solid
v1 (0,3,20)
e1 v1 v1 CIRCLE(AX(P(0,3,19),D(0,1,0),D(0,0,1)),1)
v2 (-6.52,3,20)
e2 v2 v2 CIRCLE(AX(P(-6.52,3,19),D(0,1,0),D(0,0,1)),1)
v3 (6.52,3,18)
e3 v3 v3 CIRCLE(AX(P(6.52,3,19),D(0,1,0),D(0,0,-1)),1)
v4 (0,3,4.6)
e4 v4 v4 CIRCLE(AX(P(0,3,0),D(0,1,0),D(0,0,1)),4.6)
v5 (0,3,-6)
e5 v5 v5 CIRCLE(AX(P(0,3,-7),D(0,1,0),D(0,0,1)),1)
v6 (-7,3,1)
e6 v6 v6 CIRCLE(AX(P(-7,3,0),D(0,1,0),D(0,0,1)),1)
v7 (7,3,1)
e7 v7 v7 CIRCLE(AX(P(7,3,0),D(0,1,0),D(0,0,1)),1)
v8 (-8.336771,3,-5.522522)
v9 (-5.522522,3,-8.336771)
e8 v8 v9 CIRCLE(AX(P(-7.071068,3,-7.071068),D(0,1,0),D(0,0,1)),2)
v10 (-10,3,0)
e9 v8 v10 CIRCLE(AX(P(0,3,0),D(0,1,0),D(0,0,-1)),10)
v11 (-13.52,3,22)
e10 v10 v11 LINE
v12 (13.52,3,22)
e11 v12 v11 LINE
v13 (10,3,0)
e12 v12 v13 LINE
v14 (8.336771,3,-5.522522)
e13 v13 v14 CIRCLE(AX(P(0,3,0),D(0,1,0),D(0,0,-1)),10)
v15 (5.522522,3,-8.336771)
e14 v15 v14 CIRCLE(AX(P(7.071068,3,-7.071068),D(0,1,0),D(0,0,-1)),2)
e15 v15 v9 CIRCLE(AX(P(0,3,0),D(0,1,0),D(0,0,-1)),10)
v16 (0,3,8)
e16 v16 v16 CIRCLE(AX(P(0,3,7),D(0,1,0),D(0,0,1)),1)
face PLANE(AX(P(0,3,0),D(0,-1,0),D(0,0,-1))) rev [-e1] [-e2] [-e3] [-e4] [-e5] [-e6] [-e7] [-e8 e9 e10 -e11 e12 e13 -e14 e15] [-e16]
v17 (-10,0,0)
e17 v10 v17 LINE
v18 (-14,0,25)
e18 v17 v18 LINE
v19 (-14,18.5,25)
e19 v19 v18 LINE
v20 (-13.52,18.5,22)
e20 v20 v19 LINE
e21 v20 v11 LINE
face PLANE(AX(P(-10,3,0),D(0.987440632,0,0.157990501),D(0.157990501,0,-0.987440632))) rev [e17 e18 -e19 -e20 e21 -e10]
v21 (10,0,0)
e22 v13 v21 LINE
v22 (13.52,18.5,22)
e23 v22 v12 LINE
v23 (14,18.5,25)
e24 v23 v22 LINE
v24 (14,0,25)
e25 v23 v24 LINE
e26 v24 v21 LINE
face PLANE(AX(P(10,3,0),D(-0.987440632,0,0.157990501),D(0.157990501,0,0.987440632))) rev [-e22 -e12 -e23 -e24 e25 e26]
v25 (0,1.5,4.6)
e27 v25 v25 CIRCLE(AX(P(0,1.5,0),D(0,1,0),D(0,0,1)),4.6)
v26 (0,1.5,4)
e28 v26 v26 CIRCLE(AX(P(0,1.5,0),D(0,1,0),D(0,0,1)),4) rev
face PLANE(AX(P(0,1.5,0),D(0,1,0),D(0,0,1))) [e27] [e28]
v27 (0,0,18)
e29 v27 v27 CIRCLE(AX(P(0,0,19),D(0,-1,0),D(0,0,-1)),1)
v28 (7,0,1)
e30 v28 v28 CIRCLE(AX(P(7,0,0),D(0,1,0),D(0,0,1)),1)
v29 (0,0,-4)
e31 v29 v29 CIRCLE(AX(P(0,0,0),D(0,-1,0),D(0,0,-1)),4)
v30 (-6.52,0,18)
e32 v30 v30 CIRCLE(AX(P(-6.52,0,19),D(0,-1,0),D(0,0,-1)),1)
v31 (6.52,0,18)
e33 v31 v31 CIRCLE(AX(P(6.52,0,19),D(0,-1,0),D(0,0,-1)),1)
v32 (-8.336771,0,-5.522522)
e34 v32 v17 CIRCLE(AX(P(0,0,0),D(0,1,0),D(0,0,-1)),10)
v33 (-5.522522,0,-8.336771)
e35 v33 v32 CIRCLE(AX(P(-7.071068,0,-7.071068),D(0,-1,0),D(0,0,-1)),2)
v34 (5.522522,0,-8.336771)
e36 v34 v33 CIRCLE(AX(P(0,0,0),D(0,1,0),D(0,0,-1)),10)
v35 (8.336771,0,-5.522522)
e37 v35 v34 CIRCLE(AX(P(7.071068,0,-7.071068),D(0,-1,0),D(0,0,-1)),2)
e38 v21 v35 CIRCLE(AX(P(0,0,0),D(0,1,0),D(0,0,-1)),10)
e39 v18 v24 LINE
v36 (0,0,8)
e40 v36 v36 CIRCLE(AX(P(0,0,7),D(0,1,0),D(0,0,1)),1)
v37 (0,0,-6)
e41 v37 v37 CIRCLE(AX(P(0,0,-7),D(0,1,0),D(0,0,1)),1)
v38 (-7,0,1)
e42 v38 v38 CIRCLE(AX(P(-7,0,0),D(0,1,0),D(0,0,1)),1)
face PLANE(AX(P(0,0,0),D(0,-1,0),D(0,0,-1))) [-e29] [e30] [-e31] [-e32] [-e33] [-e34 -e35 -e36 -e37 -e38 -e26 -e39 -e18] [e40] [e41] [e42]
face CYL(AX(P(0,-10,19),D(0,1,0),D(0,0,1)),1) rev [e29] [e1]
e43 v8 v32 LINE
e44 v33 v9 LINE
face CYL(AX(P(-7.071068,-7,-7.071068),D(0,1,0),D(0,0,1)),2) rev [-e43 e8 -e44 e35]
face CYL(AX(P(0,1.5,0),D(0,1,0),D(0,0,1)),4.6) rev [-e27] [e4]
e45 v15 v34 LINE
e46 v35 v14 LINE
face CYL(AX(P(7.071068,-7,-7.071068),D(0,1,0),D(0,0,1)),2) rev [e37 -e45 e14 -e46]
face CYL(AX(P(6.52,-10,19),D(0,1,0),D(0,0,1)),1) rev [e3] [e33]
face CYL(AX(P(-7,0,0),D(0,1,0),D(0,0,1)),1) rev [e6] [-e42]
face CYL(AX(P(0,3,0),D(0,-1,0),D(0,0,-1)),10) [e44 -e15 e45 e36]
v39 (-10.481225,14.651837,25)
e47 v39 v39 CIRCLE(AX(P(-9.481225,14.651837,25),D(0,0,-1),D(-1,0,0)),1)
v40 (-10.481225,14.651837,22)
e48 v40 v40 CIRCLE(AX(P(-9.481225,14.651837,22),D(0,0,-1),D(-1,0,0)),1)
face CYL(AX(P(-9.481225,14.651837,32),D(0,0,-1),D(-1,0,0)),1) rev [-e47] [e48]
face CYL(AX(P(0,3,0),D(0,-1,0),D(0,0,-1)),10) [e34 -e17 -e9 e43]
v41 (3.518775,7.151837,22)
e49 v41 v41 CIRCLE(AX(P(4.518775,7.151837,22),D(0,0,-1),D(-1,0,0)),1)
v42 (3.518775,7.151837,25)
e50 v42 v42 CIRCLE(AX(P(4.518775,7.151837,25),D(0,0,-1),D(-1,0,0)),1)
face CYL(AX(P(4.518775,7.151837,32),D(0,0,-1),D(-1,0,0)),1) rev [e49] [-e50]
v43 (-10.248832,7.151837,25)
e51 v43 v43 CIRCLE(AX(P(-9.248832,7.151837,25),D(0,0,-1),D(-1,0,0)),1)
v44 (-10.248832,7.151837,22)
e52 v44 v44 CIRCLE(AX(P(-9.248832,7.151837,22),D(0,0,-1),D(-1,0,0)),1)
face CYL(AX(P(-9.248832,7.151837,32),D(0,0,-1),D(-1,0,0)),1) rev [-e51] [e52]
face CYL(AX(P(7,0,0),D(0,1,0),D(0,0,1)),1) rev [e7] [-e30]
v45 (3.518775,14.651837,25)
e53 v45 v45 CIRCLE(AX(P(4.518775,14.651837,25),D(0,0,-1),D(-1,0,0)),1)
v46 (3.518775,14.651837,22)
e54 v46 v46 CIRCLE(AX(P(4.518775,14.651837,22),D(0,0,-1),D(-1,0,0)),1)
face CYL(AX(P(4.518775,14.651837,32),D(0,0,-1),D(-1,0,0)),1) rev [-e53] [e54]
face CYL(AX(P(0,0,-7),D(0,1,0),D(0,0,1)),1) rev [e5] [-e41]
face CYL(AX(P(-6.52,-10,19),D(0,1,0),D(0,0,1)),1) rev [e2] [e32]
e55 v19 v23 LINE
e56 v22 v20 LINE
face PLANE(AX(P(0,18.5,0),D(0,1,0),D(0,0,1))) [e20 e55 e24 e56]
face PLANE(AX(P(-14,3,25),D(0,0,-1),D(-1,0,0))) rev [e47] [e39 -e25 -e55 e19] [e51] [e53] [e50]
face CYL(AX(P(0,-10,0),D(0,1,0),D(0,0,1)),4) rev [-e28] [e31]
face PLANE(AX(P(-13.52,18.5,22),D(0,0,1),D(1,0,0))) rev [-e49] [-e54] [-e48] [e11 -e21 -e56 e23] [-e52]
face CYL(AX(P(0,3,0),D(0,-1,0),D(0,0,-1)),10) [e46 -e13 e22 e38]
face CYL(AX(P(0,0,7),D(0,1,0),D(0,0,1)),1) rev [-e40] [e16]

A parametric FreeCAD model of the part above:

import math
import FreeCAD as App
import Part
import Sketcher

V = App.Vector


def add_polygon(sketch, points):
    """Adds a closed chain of lines whose ends are joined by coincident constraints."""
    first, n = sketch.GeometryCount, len(points)
    for a, b in zip(points, points[1:] + points[:1]):
        sketch.addGeometry(Part.LineSegment(App.Vector(*a, 0), App.Vector(*b, 0)), False)
    for i in range(n):
        sketch.addConstraint(Sketcher.Constraint("Coincident", first + i, 2, first + (i + 1) % n, 1))

doc = App.newDocument("Part")
body = doc.addObject("PartDesign::Body", "Body")

sketch1 = body.newObject("Sketcher::SketchObject", "Sketch")
sketch1.AttachmentSupport = (doc.getObject("XZ_Plane"), [""])
sketch1.MapMode = "FlatFace"
sketch1.addGeometry(Part.LineSegment(V(-10, 0, 0), V(-14, 25, 0)), False)
sketch1.addGeometry(Part.LineSegment(V(-14, 25, 0), V(14, 25, 0)), False)
sketch1.addGeometry(Part.LineSegment(V(14, 25, 0), V(10, 0, 0)), False)
sketch1.addGeometry(Part.ArcOfCircle(Part.Circle(V(0, 0, 0), V(0, 0, 1), 10), math.radians(180), math.radians(360)), False)
sketch1.addConstraint(Sketcher.Constraint("Coincident", 0, 2, 1, 1))
sketch1.addConstraint(Sketcher.Constraint("Coincident", 1, 2, 2, 1))
sketch1.addConstraint(Sketcher.Constraint("Coincident", 2, 2, 3, 2))
sketch1.addConstraint(Sketcher.Constraint("Coincident", 3, 1, 0, 1))
sketch1.addConstraint(Sketcher.Constraint("Horizontal", 1))
sketch1.addConstraint(Sketcher.Constraint("Coincident", 3, 3, -1, 1))
sketch1.addConstraint(Sketcher.Constraint("PointOnObject", 2, 2, -1))
sketch1.addConstraint(Sketcher.Constraint("PointOnObject", 3, 1, -1))
sketch1.addConstraint(Sketcher.Constraint("Equal", 0, 2))
sketch1.addConstraint(Sketcher.Constraint("Radius", 3, 10.0))
sketch1.addConstraint(Sketcher.Constraint("DistanceX", 1, 1, 1, 2, 28.0))
sketch1.addConstraint(Sketcher.Constraint("DistanceY", -1, 1, 0, 2, 25.0))
pad1 = body.newObject("PartDesign::Pad", "Pad")
pad1.Profile = sketch1
pad1.Length = 3
pad1.Reversed = True

sketch2 = body.newObject("Sketcher::SketchObject", "Sketch001")
sketch2.AttachmentSupport = (doc.getObject("XZ_Plane"), [""])
sketch2.MapMode = "FlatFace"
sketch2.AttachmentOffset = App.Placement(V(0, 0, -3), App.Rotation())
sketch2.addGeometry(Part.Circle(V(0, 0, 0), V(0, 0, 1), 4), False)
sketch2.addConstraint(Sketcher.Constraint("Coincident", 0, 3, -1, 1))
sketch2.addConstraint(Sketcher.Constraint("Diameter", 0, 8.0))
pocket1 = body.newObject("PartDesign::Pocket", "Pocket")
pocket1.Profile = sketch2
pocket1.Length = 13
pocket1.Reversed = True

sketch3 = body.newObject("Sketcher::SketchObject", "Sketch002")
sketch3.AttachmentSupport = (doc.getObject("XZ_Plane"), [""])
sketch3.MapMode = "FlatFace"
sketch3.AttachmentOffset = App.Placement(V(0, 0, -3), App.Rotation())
sketch3.addGeometry(Part.Circle(V(-6.5, 19, 0), V(0, 0, 1), 1), False)
sketch3.addGeometry(Part.Circle(V(6.5, 19, 0), V(0, 0, 1), 1), False)
sketch3.addGeometry(Part.Circle(V(0, 19, 0), V(0, 0, 1), 1), False)
sketch3.addConstraint(Sketcher.Constraint("Equal", 0, 1))
sketch3.addConstraint(Sketcher.Constraint("Equal", 1, 2))
sketch3.addConstraint(Sketcher.Constraint("Symmetric", 0, 3, 1, 3, -2))
sketch3.addConstraint(Sketcher.Constraint("PointOnObject", 2, 3, -2))
sketch3.addConstraint(Sketcher.Constraint("Horizontal", 1, 3, 2, 3))
sketch3.addConstraint(Sketcher.Constraint("Diameter", 0, 2.0))
sketch3.addConstraint(Sketcher.Constraint("DistanceY", -1, 1, 0, 3, 19.0))
sketch3.addConstraint(Sketcher.Constraint("DistanceX", 0, 3, -1, 1, 6.52))
pocket2 = body.newObject("PartDesign::Pocket", "Pocket001")
pocket2.Profile = sketch3
pocket2.Length = 13
pocket2.Reversed = True

sketch4 = body.newObject("Sketcher::SketchObject", "Sketch003")
sketch4.AttachmentSupport = (doc.getObject("XZ_Plane"), [""])
sketch4.MapMode = "FlatFace"
sketch4.AttachmentOffset = App.Placement(V(0, 0, -3), App.Rotation())
sketch4.addGeometry(Part.Circle(V(0, 7, 0), V(0, 0, 1), 1), False)
sketch4.addGeometry(Part.Circle(V(-7, 0, 0), V(0, 0, 1), 1), False)
sketch4.addGeometry(Part.Circle(V(0, -7, 0), V(0, 0, 1), 1), False)
sketch4.addGeometry(Part.Circle(V(7, 0, 0), V(0, 0, 1), 1), False)
sketch4.addConstraint(Sketcher.Constraint("Equal", 0, 1))
sketch4.addConstraint(Sketcher.Constraint("Equal", 1, 2))
sketch4.addConstraint(Sketcher.Constraint("Equal", 2, 3))
sketch4.addConstraint(Sketcher.Constraint("Symmetric", 0, 3, 2, 3, -1, 1))
sketch4.addConstraint(Sketcher.Constraint("Symmetric", 1, 3, 3, 3, -1, 1))
sketch4.addConstraint(Sketcher.Constraint("PointOnObject", 0, 3, -2))
sketch4.addConstraint(Sketcher.Constraint("PointOnObject", 1, 3, -1))
sketch4.addConstraint(Sketcher.Constraint("Diameter", 0, 2.0))
sketch4.addConstraint(Sketcher.Constraint("DistanceY", -1, 1, 0, 3, 7.0))
sketch4.addConstraint(Sketcher.Constraint("DistanceX", 1, 3, -1, 1, 7.0))
pocket3 = body.newObject("PartDesign::Pocket", "Pocket002")
pocket3.Profile = sketch4
pocket3.Length = 3
pocket3.Reversed = True

sketch5 = body.newObject("Sketcher::SketchObject", "Sketch004")
sketch5.AttachmentSupport = (doc.getObject("XZ_Plane"), [""])
sketch5.MapMode = "FlatFace"
sketch5.AttachmentOffset = App.Placement(V(0, 0, -3), App.Rotation())
add_polygon(sketch5, [(13.5, 22), (-13.5, 22), (-14, 25), (14, 25)])
sketch5.addConstraint(Sketcher.Constraint("Horizontal", 0))
sketch5.addConstraint(Sketcher.Constraint("Horizontal", 2))
sketch5.addConstraint(Sketcher.Constraint("Equal", 1, 3))
sketch5.addConstraint(Sketcher.Constraint("DistanceX", 2, 1, 2, 2, 28.0))
sketch5.addConstraint(Sketcher.Constraint("DistanceY", -1, 1, 0, 2, 22.0))
sketch5.addConstraint(Sketcher.Constraint("DistanceX", 1, 2, -1, 1, 14.0))
sketch5.addConstraint(Sketcher.Constraint("DistanceY", -1, 1, 1, 2, 25.0))
sketch5.addConstraint(Sketcher.Constraint("DistanceX", 0, 2, 0, 1, 27.04))
pad2 = body.newObject("PartDesign::Pad", "Pad001")
pad2.Profile = sketch5
pad2.Length = 15.5
pad2.Reversed = True

sketch6 = body.newObject("Sketcher::SketchObject", "Sketch005")
sketch6.AttachmentSupport = (doc.getObject("XZ_Plane"), [""])
sketch6.MapMode = "FlatFace"
sketch6.AttachmentOffset = App.Placement(V(0, 0, -3), App.Rotation())
sketch6.addGeometry(Part.Circle(V(0, 0, 0), V(0, 0, 1), 4.6), False)
sketch6.addConstraint(Sketcher.Constraint("Coincident", 0, 3, -1, 1))
sketch6.addConstraint(Sketcher.Constraint("Diameter", 0, 9.2))
pocket4 = body.newObject("PartDesign::Pocket", "Pocket003")
pocket4.Profile = sketch6
pocket4.Length = 1.5
pocket4.Reversed = True

sketch7 = body.newObject("Sketcher::SketchObject", "Sketch006")
sketch7.AttachmentSupport = (doc.getObject("XZ_Plane"), [""])
sketch7.MapMode = "FlatFace"
sketch7.AttachmentOffset = App.Placement(V(0, 0, -3), App.Rotation())
sketch7.addGeometry(Part.Circle(V(-7.1, -7.1, 0), V(0, 0, 1), 2), False)
sketch7.addGeometry(Part.Circle(V(7.1, -7.1, 0), V(0, 0, 1), 2), False)
sketch7.addConstraint(Sketcher.Constraint("Equal", 0, 1))
sketch7.addConstraint(Sketcher.Constraint("Symmetric", 0, 3, 1, 3, -2))
sketch7.addConstraint(Sketcher.Constraint("Diameter", 0, 4.0))
sketch7.addConstraint(Sketcher.Constraint("DistanceX", 0, 3, -1, 1, 7.071068))
sketch7.addConstraint(Sketcher.Constraint("DistanceY", 0, 3, -1, 1, 7.071068))
pocket5 = body.newObject("PartDesign::Pocket", "Pocket004")
pocket5.Profile = sketch7
pocket5.Length = 10
pocket5.Reversed = True

sketch8 = body.newObject("Sketcher::SketchObject", "Sketch007")
sketch8.AttachmentSupport = (doc.getObject("XY_Plane"), [""])
sketch8.MapMode = "FlatFace"
sketch8.AttachmentOffset = App.Placement(V(0, 0, 22), App.Rotation())
sketch8.addGeometry(Part.Circle(V(4.5, 7.2, 0), V(0, 0, 1), 1), False)
sketch8.addGeometry(Part.Circle(V(4.5, 14.7, 0), V(0, 0, 1), 1), False)
sketch8.addGeometry(Part.Circle(V(-9.5, 14.7, 0), V(0, 0, 1), 1), False)
sketch8.addGeometry(Part.Circle(V(-9.2, 7.2, 0), V(0, 0, 1), 1), False)
sketch8.addConstraint(Sketcher.Constraint("Equal", 0, 1))
sketch8.addConstraint(Sketcher.Constraint("Equal", 1, 2))
sketch8.addConstraint(Sketcher.Constraint("Equal", 2, 3))
sketch8.addConstraint(Sketcher.Constraint("Horizontal", 1, 3, 2, 3))
sketch8.addConstraint(Sketcher.Constraint("Horizontal", 0, 3, 3, 3))
sketch8.addConstraint(Sketcher.Constraint("Vertical", 0, 3, 1, 3))
sketch8.addConstraint(Sketcher.Constraint("Diameter", 0, 2.0))
sketch8.addConstraint(Sketcher.Constraint("DistanceX", 2, 3, 1, 3, 14.0))
sketch8.addConstraint(Sketcher.Constraint("DistanceY", 0, 3, 1, 3, 7.5))
sketch8.addConstraint(Sketcher.Constraint("DistanceX", -1, 1, 0, 3, 4.518775))
sketch8.addConstraint(Sketcher.Constraint("DistanceY", -1, 1, 0, 3, 7.151837))
sketch8.addConstraint(Sketcher.Constraint("DistanceX", 3, 3, -1, 1, 9.248832))
pocket6 = body.newObject("PartDesign::Pocket", "Pocket005")
pocket6.Profile = sketch8
pocket6.Length = 10
pocket6.Reversed = True

doc.recompute()
